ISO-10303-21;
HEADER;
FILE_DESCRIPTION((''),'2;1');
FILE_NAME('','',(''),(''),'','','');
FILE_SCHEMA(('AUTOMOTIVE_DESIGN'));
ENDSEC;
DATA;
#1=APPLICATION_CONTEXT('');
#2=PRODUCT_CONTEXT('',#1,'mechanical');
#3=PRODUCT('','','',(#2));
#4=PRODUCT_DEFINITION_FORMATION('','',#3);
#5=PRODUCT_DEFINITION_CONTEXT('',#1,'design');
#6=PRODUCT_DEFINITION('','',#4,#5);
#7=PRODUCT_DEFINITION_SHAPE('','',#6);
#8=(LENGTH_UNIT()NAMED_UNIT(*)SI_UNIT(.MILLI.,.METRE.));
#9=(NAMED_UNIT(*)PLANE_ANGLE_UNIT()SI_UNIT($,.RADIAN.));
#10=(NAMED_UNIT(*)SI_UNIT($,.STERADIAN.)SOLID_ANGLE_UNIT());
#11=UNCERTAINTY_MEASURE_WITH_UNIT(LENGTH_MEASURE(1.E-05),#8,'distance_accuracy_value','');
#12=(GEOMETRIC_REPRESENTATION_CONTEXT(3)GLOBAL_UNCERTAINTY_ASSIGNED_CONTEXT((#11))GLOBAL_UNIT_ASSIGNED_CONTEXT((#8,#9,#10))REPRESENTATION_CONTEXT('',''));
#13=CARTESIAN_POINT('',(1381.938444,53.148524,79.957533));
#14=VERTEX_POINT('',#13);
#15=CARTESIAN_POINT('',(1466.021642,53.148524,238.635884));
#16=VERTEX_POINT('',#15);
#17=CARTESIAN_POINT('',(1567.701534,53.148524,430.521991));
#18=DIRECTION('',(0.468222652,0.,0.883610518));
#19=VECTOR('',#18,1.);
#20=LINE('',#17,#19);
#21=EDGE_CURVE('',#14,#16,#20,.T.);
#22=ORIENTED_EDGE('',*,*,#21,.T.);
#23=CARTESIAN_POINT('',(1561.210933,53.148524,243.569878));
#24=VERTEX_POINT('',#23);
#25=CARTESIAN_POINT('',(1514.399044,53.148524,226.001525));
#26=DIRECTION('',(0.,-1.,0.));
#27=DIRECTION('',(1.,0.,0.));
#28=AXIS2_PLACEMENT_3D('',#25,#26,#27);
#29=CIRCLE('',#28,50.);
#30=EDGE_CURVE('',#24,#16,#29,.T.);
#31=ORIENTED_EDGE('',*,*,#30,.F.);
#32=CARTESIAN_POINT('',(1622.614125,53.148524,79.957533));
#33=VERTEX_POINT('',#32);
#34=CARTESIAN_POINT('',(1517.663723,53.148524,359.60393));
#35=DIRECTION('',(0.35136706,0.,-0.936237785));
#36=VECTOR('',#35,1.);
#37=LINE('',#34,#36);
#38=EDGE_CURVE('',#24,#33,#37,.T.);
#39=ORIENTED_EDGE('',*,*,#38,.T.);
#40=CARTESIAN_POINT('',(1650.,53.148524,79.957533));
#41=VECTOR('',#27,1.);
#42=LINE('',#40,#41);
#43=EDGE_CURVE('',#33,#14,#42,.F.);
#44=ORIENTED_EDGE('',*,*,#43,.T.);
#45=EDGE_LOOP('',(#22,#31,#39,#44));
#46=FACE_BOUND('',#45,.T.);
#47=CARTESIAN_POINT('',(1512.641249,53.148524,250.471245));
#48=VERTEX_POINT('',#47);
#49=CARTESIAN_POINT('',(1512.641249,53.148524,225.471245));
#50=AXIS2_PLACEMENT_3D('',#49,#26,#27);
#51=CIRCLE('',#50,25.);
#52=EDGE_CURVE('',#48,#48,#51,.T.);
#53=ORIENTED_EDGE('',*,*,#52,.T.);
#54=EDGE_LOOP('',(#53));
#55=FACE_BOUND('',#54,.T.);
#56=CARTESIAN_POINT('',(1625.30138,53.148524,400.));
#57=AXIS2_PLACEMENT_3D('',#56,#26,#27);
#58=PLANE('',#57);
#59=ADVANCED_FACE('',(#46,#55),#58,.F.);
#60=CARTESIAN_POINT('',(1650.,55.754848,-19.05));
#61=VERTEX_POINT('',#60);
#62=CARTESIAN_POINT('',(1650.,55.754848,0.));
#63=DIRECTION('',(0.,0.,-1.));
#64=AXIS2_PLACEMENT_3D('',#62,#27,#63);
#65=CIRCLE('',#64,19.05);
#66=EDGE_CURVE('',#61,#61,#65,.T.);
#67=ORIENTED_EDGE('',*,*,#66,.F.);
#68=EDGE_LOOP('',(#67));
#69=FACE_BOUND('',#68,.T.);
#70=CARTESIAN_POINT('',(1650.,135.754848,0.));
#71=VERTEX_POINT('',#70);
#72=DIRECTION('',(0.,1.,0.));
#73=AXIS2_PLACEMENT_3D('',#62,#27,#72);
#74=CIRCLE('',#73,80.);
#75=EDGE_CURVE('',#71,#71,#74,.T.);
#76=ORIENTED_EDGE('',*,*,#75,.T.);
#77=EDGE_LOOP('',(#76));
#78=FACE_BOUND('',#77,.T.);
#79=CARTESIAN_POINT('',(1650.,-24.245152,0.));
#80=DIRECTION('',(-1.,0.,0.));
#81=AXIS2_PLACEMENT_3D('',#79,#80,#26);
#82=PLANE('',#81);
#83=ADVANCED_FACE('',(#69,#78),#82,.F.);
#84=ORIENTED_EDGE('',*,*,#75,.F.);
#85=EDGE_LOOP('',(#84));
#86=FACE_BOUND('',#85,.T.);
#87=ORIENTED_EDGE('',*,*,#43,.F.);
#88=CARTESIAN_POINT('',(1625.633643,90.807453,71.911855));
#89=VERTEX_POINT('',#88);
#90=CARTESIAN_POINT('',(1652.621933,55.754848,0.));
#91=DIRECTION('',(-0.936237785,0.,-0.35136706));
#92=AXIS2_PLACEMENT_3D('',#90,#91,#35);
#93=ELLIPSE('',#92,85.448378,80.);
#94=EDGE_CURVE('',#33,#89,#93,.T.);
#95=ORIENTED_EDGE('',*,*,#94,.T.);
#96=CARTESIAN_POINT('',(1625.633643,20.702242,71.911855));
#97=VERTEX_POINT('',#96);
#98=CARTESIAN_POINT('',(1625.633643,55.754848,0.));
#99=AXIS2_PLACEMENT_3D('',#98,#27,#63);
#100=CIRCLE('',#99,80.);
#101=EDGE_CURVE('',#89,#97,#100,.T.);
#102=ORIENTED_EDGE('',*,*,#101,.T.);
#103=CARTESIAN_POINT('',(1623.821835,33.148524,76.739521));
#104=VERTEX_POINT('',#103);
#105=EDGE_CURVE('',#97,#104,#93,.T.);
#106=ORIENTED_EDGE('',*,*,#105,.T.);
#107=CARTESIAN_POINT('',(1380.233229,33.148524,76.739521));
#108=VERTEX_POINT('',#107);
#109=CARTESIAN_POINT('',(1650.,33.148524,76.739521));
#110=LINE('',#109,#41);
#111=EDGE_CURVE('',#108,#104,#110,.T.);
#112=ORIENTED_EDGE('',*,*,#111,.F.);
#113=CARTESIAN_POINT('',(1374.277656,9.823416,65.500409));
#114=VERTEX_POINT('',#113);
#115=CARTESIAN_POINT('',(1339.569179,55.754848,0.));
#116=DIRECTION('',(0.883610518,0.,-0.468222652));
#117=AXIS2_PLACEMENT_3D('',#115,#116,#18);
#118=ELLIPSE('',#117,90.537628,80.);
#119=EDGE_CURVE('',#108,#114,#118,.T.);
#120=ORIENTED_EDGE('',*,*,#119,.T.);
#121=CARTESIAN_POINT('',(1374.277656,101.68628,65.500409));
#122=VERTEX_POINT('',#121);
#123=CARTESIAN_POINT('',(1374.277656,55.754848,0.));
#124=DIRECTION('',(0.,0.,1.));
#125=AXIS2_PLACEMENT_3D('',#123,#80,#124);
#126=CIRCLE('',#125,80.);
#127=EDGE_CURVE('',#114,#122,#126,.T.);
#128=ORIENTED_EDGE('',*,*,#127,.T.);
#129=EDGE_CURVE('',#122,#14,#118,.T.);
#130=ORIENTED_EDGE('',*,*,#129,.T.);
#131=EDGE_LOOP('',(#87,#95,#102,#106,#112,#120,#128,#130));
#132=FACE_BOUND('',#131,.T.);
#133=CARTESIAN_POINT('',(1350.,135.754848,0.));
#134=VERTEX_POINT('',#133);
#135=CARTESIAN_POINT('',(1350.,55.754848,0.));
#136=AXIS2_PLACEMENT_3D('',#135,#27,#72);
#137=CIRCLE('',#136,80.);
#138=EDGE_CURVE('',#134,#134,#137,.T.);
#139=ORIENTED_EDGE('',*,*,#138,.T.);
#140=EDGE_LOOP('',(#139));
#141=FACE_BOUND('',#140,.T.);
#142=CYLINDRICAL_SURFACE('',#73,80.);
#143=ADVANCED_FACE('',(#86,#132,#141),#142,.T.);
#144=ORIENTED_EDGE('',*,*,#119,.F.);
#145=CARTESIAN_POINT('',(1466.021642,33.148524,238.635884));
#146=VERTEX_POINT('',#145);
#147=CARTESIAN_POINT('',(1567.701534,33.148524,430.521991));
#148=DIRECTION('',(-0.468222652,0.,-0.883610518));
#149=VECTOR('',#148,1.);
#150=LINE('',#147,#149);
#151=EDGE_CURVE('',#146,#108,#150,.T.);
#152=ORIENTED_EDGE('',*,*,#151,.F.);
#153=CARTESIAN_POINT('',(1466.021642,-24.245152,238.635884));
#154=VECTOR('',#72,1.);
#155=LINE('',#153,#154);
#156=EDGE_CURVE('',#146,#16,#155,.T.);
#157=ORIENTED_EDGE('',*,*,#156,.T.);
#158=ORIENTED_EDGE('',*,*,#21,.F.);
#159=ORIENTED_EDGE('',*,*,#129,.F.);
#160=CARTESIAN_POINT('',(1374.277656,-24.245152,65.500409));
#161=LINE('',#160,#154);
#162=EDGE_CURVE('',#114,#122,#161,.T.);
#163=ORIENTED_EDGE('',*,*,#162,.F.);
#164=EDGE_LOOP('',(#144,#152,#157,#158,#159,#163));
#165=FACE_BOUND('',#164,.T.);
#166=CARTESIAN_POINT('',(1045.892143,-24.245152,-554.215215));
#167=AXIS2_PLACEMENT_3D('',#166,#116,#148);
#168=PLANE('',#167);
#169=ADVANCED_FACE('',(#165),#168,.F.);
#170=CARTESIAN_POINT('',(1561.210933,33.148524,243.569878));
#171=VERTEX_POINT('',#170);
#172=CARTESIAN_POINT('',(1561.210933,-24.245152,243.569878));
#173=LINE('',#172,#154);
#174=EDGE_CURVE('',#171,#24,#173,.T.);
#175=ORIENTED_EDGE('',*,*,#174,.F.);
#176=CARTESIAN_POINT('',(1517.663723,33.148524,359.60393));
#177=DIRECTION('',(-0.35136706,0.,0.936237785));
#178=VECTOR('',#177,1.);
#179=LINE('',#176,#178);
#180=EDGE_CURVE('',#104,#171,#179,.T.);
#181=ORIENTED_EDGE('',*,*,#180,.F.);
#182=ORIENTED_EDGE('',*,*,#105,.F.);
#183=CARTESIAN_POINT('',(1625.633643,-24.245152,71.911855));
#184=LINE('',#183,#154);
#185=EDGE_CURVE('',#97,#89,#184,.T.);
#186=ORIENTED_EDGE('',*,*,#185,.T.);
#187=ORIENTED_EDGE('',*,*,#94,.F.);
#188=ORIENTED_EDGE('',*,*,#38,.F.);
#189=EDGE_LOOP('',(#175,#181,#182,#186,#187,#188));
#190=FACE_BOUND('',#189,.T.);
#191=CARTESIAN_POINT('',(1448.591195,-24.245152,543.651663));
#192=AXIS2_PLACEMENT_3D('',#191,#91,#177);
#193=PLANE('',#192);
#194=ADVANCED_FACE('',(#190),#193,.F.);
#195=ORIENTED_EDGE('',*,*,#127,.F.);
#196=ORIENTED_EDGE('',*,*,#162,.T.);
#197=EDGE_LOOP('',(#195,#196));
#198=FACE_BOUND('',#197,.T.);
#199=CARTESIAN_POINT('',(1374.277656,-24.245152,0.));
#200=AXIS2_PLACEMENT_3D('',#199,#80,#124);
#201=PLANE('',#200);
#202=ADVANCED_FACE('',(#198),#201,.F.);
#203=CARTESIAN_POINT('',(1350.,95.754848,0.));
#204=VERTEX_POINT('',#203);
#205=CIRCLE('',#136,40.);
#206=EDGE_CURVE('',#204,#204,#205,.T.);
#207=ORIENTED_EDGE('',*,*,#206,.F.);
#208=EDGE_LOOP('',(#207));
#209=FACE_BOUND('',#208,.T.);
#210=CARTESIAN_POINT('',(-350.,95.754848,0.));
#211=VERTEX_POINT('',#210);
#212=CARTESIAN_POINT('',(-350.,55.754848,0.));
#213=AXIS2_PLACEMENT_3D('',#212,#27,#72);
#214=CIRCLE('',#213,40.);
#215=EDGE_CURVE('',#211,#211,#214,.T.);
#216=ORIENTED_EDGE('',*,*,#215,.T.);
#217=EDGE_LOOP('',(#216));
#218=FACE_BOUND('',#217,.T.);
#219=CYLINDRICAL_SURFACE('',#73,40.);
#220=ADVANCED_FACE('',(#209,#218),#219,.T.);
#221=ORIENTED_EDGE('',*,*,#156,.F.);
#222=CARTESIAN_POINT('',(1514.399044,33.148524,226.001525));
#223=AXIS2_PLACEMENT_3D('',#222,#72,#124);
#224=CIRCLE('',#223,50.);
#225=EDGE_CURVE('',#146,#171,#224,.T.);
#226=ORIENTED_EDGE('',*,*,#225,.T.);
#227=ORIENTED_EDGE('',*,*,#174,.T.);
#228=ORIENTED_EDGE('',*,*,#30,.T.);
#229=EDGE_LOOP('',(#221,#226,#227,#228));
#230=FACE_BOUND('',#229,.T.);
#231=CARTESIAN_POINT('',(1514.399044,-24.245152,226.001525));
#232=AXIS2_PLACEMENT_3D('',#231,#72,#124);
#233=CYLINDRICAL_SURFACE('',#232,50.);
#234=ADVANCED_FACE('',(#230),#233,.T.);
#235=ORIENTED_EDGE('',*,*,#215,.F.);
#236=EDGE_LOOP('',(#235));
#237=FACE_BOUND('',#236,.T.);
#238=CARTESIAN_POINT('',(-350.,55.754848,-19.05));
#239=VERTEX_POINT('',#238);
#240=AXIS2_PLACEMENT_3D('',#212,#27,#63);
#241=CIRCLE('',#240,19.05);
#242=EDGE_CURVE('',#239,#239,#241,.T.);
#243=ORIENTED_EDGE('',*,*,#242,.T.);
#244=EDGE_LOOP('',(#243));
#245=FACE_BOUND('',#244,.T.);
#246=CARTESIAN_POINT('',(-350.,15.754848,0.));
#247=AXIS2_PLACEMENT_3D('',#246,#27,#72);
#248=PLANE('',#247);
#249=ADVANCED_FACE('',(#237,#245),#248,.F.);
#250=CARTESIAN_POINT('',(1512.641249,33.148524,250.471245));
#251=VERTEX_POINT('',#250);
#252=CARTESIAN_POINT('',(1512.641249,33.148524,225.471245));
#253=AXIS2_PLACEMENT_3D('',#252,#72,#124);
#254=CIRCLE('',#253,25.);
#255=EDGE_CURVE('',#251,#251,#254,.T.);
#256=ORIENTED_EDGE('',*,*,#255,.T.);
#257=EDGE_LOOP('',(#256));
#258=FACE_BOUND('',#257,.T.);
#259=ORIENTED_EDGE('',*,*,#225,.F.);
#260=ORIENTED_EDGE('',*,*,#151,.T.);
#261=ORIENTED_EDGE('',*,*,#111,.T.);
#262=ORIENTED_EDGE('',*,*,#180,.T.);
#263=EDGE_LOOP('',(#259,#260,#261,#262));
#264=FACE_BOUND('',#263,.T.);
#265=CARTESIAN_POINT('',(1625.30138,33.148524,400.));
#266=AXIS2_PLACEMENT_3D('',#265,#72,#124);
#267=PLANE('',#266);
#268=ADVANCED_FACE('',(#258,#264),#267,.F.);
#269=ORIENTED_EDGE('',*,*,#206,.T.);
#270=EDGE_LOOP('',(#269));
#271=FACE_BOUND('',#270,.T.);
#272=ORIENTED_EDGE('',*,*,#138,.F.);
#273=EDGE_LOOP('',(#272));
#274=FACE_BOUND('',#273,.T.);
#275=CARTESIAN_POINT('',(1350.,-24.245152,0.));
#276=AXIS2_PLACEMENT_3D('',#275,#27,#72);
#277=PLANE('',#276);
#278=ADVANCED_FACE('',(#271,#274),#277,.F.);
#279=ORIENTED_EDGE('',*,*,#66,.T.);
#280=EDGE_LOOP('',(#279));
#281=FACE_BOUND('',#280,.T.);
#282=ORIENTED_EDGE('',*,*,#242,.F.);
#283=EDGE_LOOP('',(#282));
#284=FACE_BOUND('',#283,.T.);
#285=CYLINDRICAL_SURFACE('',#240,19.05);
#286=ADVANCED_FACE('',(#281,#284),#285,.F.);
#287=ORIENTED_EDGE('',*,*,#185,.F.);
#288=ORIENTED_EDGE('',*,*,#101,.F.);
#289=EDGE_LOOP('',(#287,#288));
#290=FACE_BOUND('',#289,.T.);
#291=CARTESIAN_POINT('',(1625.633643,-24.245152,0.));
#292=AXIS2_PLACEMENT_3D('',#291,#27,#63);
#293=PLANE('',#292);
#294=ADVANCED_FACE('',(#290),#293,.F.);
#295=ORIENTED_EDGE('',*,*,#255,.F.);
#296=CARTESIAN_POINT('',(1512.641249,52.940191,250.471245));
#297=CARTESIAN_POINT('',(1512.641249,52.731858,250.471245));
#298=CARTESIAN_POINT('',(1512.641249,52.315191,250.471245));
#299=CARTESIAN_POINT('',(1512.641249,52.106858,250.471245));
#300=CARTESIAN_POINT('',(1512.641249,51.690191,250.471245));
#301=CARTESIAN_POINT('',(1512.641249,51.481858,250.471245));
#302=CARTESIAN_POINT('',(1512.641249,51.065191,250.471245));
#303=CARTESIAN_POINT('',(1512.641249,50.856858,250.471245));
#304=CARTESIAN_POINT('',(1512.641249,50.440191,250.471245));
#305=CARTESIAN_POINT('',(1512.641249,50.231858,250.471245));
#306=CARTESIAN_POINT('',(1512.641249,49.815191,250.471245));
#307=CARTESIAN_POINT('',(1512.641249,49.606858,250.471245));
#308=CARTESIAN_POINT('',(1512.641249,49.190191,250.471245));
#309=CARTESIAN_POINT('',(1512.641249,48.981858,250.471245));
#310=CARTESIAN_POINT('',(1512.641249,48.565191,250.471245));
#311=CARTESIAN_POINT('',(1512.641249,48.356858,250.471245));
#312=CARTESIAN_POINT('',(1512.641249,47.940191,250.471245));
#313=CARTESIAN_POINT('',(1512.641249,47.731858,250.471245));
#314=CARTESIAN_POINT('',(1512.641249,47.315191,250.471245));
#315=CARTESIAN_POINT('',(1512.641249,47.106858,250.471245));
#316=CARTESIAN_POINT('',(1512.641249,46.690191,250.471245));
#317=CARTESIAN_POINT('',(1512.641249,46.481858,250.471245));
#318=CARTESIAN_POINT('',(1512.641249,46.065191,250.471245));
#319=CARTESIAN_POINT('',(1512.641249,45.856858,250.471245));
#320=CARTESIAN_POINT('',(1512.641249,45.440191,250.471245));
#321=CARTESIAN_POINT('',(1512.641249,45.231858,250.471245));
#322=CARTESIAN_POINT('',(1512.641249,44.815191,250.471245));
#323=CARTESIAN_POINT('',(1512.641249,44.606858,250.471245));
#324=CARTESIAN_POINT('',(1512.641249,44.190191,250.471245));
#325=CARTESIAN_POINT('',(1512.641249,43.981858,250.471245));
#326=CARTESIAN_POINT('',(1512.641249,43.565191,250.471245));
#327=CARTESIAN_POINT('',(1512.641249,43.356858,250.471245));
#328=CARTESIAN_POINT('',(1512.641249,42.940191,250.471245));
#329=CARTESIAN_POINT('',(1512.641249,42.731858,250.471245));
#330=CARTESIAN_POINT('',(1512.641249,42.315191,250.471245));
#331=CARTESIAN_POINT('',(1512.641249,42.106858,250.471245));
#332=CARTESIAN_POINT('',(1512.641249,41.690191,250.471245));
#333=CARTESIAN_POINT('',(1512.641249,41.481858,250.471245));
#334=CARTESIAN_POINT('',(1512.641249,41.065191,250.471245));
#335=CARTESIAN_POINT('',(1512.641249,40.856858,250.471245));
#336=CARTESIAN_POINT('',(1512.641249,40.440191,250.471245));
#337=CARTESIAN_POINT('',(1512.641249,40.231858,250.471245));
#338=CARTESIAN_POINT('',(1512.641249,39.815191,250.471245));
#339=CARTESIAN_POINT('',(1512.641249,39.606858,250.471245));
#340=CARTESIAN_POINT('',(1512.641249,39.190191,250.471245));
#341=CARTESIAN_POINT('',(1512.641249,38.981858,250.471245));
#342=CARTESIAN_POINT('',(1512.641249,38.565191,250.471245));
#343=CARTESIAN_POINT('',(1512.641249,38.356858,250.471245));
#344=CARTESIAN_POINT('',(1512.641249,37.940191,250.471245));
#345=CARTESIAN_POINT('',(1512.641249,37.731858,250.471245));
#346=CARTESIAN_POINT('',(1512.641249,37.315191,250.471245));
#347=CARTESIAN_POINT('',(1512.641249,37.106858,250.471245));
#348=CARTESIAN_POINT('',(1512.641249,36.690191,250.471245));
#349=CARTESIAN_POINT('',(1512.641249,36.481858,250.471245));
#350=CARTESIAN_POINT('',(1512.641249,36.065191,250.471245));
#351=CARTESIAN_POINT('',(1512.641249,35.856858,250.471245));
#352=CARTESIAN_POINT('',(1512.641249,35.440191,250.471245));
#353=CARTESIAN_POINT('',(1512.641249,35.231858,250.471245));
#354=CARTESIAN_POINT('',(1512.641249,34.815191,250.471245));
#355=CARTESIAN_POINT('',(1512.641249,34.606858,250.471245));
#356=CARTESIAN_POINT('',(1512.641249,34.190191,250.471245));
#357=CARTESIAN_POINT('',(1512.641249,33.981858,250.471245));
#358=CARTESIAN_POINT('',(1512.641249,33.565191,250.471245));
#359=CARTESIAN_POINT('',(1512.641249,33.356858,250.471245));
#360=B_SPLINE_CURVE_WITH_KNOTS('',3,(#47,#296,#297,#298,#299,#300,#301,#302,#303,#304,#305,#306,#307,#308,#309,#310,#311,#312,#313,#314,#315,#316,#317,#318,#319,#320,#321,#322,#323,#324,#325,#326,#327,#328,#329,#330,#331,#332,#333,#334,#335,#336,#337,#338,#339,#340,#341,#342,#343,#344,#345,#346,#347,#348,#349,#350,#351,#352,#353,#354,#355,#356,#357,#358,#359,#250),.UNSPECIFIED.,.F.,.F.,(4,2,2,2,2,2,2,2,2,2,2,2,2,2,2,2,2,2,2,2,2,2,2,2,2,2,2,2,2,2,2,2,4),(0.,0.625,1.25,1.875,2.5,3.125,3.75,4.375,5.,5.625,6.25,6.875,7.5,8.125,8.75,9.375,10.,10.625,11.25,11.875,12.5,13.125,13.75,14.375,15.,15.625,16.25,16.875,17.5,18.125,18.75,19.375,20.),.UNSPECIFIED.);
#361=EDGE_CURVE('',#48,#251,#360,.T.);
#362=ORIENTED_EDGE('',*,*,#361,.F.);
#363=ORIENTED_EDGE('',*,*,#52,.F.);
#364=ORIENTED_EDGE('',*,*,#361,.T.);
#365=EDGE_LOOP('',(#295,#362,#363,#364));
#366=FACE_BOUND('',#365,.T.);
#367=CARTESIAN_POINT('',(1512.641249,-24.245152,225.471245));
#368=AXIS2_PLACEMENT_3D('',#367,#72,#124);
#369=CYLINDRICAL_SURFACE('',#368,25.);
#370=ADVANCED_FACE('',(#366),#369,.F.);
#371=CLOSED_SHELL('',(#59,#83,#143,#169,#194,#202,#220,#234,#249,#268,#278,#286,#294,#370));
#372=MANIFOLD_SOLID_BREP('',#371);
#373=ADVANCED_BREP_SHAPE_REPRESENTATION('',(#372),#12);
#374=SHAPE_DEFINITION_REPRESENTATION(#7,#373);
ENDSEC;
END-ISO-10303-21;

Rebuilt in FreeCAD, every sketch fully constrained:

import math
import FreeCAD as App
import Part
import Sketcher


def add_polygon(sketch, points):
    """Adds a closed chain of lines whose ends are joined by coincident constraints."""
    first, n = sketch.GeometryCount, len(points)
    for a, b in zip(points, points[1:] + points[:1]):
        sketch.addGeometry(Part.LineSegment(App.Vector(*a, 0), App.Vector(*b, 0)), False)
    for i in range(n):
        sketch.addConstraint(Sketcher.Constraint("Coincident", first + i, 2, first + (i + 1) % n, 1))

doc = App.newDocument("Part")
body = doc.addObject("PartDesign::Body", "Body")

# Sketch on XY plane
sketch1 = doc.addObject("Sketcher::SketchObject", "Sketch")
body.addObject(sketch1)
sketch1.AttachmentSupport = (doc.XY_Plane, [""])
sketch1.MapMode = "FlatFace"
add_polygon(sketch1, [(1350, -24.245152), (1650, -24.245152), (1650, 55.754848), (-350, 55.754848), (-350, 15.754848), (1350, 15.754848)])  # lines 0-5
sketch1.addGeometry(Part.LineSegment(App.Vector(1650, 55.754848, 0), App.Vector(-350, 55.754848, 0)), True)  # axis
sketch1.addConstraint([
    Sketcher.Constraint("Horizontal", 0),
    Sketcher.Constraint("Vertical", 1),
    Sketcher.Constraint("Horizontal", 2),
    Sketcher.Constraint("Vertical", 3),
    Sketcher.Constraint("Horizontal", 4),
    Sketcher.Constraint("Vertical", 5),
    Sketcher.Constraint("Horizontal", 6),
    Sketcher.Constraint("Coincident", 6, 1, 1, 2),
    Sketcher.Constraint("Vertical", 3, 2, 6, 2),
    Sketcher.Constraint("Equal", 3, 5),
    Sketcher.Constraint("DistanceX", 0, 1, 0, 2, 300.0),
    Sketcher.Constraint("DistanceX", 2, 2, 2, 1, 2000.0),
    Sketcher.Constraint("DistanceY", 1, 1, 1, 2, 80.0),
    Sketcher.Constraint("DistanceX", -1, 1, 0, 2, 1650.0),
    Sketcher.Constraint("DistanceY", 0, 2, -1, 1, 24.245152),
])
revolution = doc.addObject("PartDesign::Revolution", "Revolution")
body.addObject(revolution)
revolution.Profile = sketch1
revolution.ReferenceAxis = (sketch1, ["Axis0"])
revolution.Angle = 360

# Sketch on XY plane
sketch2 = doc.addObject("Sketcher::SketchObject", "Sketch001")
body.addObject(sketch2)
sketch2.AttachmentSupport = (doc.XY_Plane, [""])
sketch2.MapMode = "FlatFace"
add_polygon(sketch2, [(1379.861298, 53.148524), (1379.861298, 33.148524), (1625.30138, 33.148524), (1625.30138, 53.148524)])  # lines 0-3
sketch2.addConstraint([
    Sketcher.Constraint("Vertical", 0),
    Sketcher.Constraint("Horizontal", 1),
    Sketcher.Constraint("Vertical", 2),
    Sketcher.Constraint("Horizontal", 3),
    Sketcher.Constraint("DistanceY", 0, 2, 0, 1, 20.0),
    Sketcher.Constraint("DistanceX", 1, 1, 1, 2, 245.440082),
    Sketcher.Constraint("DistanceX", -1, 1, 1, 2, 1625.30138),
    Sketcher.Constraint("DistanceY", -1, 1, 0, 2, 33.148524),
])
pad1 = doc.addObject("PartDesign::Pad", "Pad")
body.addObject(pad1)
pad1.Profile = sketch2
pad1.Length = 400

# Sketch on XZ plane
sketch3 = doc.addObject("Sketcher::SketchObject", "Sketch002")
body.addObject(sketch3)
sketch3.AttachmentSupport = (doc.XZ_Plane, [""])
sketch3.MapMode = "FlatFace"
sketch3.addGeometry([
    Part.ArcOfCircle(Part.Circle(App.Vector(1514.399044, 226.001525, 0), App.Vector(0, 0, 1), 50), math.radians(20.570953), math.radians(138.79861)),  # 0
    Part.ArcOfCircle(Part.Circle(App.Vector(1514.399044, 226.001525, 0), App.Vector(0, 0, 1), 50), math.radians(138.79861), math.radians(165.363417)),  # 1
    Part.LineSegment(App.Vector(1466.021642, 238.635884, 0), App.Vector(1374.277656, 65.500409, 0)),  # 2
    Part.LineSegment(App.Vector(1374.277656, 65.500409, 0), App.Vector(1374.277656, 447.060347, 0)),  # 3
    Part.LineSegment(App.Vector(1374.277656, 447.060347, 0), App.Vector(1625.633643, 447.060347, 0)),  # 4
    Part.LineSegment(App.Vector(1625.633643, 447.060347, 0), App.Vector(1625.633643, 71.911855, 0)),  # 5
    Part.LineSegment(App.Vector(1625.633643, 71.911855, 0), App.Vector(1561.210933, 243.569878, 0)),  # 6
    Part.Circle(App.Vector(1512.641249, 225.471245, 0), App.Vector(0, 0, 1), 25),  # 7
], False)
sketch3.addConstraint([
    Sketcher.Constraint("Tangent", 0, 2, 1, 1),
    Sketcher.Constraint("Coincident", 1, 2, 2, 1),
    Sketcher.Constraint("Coincident", 2, 2, 3, 1),
    Sketcher.Constraint("Coincident", 3, 2, 4, 1),
    Sketcher.Constraint("Coincident", 4, 2, 5, 1),
    Sketcher.Constraint("Coincident", 5, 2, 6, 1),
    Sketcher.Constraint("Tangent", 6, 2, 0, 1),
    Sketcher.Constraint("Vertical", 3),
    Sketcher.Constraint("Horizontal", 4),
    Sketcher.Constraint("Vertical", 5),
    Sketcher.Constraint("Equal", 0, 1),
    Sketcher.Constraint("Diameter", 7, 50.0),
    Sketcher.Constraint("Radius", 0, 50.0),
    Sketcher.Constraint("DistanceX", 1, 2, 5, 2, 159.612),
    Sketcher.Constraint("DistanceY", 5, 2, 5, 1, 375.148492),
    Sketcher.Constraint("DistanceX", 1, 2, 0, 3, 48.377401),
    Sketcher.Constraint("DistanceY", 7, 3, 3, 2, 221.589102),
    Sketcher.Constraint("Distance", 2, 195.94094),
    Sketcher.Constraint("DistanceX", 4, 1, 4, 2, 251.355987),
    Sketcher.Constraint("DistanceY", 3, 1, 3, 2, 381.559938),
    Sketcher.Constraint("DistanceX", -1, 1, 7, 3, 1512.641249),
    Sketcher.Constraint("DistanceY", -1, 1, 0, 2, 258.936911),
    Sketcher.Constraint("DistanceY", -1, 1, 2, 2, 65.500409),
    Sketcher.Constraint("DistanceX", 0, 2, 7, 3, 35.862151),
])
pocket1 = doc.addObject("PartDesign::Pocket", "Pocket")
body.addObject(pocket1)
pocket1.Profile = sketch3
pocket1.Type = "ThroughAll"
pocket1.Midplane = True

# Sketch on YZ plane
sketch4 = doc.addObject("Sketcher::SketchObject", "Sketch003")
body.addObject(sketch4)
sketch4.AttachmentSupport = (doc.YZ_Plane, [""])
sketch4.MapMode = "FlatFace"
sketch4.addGeometry(Part.Circle(App.Vector(55.754848, 0, 0), App.Vector(0, 0, 1), 19.05), False)
sketch4.addConstraint([
    Sketcher.Constraint("PointOnObject", 0, 3, -1),
    Sketcher.Constraint("Diameter", 0, 38.1),
    Sketcher.Constraint("DistanceX", -1, 1, 0, 3, 55.754848),
])
pocket2 = doc.addObject("PartDesign::Pocket", "Pocket001")
body.addObject(pocket2)
pocket2.Profile = sketch4
pocket2.Type = "ThroughAll"
pocket2.Midplane = True

doc.recompute()
